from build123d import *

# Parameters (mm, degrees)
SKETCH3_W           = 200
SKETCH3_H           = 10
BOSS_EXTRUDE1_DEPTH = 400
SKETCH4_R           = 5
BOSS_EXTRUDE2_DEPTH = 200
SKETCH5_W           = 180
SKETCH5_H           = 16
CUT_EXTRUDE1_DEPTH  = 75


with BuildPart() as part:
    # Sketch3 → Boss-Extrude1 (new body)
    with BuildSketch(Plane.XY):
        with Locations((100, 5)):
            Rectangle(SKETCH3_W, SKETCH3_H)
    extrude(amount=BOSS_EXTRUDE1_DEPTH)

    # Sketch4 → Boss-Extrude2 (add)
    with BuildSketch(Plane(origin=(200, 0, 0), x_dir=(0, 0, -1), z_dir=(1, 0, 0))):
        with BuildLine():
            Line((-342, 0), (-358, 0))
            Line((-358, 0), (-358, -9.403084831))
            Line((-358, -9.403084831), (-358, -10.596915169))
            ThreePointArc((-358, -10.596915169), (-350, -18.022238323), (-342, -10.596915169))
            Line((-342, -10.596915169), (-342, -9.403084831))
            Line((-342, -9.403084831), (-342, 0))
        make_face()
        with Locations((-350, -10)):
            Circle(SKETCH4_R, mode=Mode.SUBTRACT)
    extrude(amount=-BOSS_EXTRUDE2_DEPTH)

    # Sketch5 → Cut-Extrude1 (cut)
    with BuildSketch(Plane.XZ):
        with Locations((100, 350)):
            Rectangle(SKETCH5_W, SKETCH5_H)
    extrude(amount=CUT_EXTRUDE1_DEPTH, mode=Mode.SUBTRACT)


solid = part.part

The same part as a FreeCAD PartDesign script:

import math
import FreeCAD as App
import Part
import Sketcher

doc = App.newDocument("Part")
body = doc.addObject("PartDesign::Body", "Body")

# Sketch on XY plane
sketch1 = body.newObject("Sketcher::SketchObject", "Sketch")
sketch1.AttachmentSupport = (doc.getObject("XY_Plane"), [""])
sketch1.MapMode = "FlatFace"
sketch1.addGeometry(Part.LineSegment(App.Vector(0, 10, 0), App.Vector(0, 0, 0)), False)
sketch1.addGeometry(Part.LineSegment(App.Vector(0, 0, 0), App.Vector(200, 0, 0)), False)
sketch1.addGeometry(Part.LineSegment(App.Vector(200, 0, 0), App.Vector(200, 10, 0)), False)
sketch1.addGeometry(Part.LineSegment(App.Vector(200, 10, 0), App.Vector(0, 10, 0)), False)
sketch1.addConstraint(Sketcher.Constraint("Coincident", 0, 2, 1, 1))
sketch1.addConstraint(Sketcher.Constraint("Coincident", 1, 2, 2, 1))
sketch1.addConstraint(Sketcher.Constraint("Coincident", 2, 2, 3, 1))
sketch1.addConstraint(Sketcher.Constraint("Coincident", 3, 2, 0, 1))
sketch1.addConstraint(Sketcher.Constraint("Vertical", 0))
sketch1.addConstraint(Sketcher.Constraint("Horizontal", 1))
sketch1.addConstraint(Sketcher.Constraint("Vertical", 2))
sketch1.addConstraint(Sketcher.Constraint("Horizontal", 3))
sketch1.addConstraint(Sketcher.Constraint("Coincident", 0, 2, -1, 1))
sketch1.addConstraint(Sketcher.Constraint("DistanceX", 1, 1, 1, 2, 200.0))
sketch1.addConstraint(Sketcher.Constraint("DistanceY", 0, 2, 0, 1, 10.0))
pad1 = body.newObject("PartDesign::Pad", "Pad")
pad1.Profile = sketch1
pad1.Length = 400

# Sketch on YZ plane
sketch2 = body.newObject("Sketcher::SketchObject", "Sketch001")
sketch2.AttachmentSupport = (doc.getObject("YZ_Plane"), [""])
sketch2.MapMode = "FlatFace"
sketch2.AttachmentOffset = App.Placement(App.Vector(0, 0, 200), App.Rotation())
sketch2.addGeometry(Part.LineSegment(App.Vector(0, 342, 0), App.Vector(0, 358, 0)), False)
sketch2.addGeometry(Part.LineSegment(App.Vector(0, 358, 0), App.Vector(-10.596915, 358, 0)), False)
sketch2.addGeometry(Part.ArcOfCircle(Part.Circle(App.Vector(-10, 350, 0), App.Vector(0, 0, 1), 8.022238), math.radians(94.267183), math.radians(265.732817)), False)
sketch2.addGeometry(Part.LineSegment(App.Vector(-10.596915, 342, 0), App.Vector(0, 342, 0)), False)
sketch2.addGeometry(Part.Circle(App.Vector(-10, 350, 0), App.Vector(0, 0, 1), 5), False)
sketch2.addConstraint(Sketcher.Constraint("Coincident", 0, 2, 1, 1))
sketch2.addConstraint(Sketcher.Constraint("Coincident", 1, 2, 2, 1))
sketch2.addConstraint(Sketcher.Constraint("Coincident", 2, 2, 3, 1))
sketch2.addConstraint(Sketcher.Constraint("Coincident", 3, 2, 0, 1))
sketch2.addConstraint(Sketcher.Constraint("Vertical", 0))
sketch2.addConstraint(Sketcher.Constraint("Horizontal", 1))
sketch2.addConstraint(Sketcher.Constraint("Horizontal", 3))
sketch2.addConstraint(Sketcher.Constraint("Coincident", 4, 3, 2, 3))
sketch2.addConstraint(Sketcher.Constraint("PointOnObject", 0, 2, -2))
sketch2.addConstraint(Sketcher.Constraint("Vertical", 1, 2, 2, 2))
sketch2.addConstraint(Sketcher.Constraint("Diameter", 4, 10.0))
sketch2.addConstraint(Sketcher.Constraint("DistanceY", 0, 1, 0, 2, 16.0))
sketch2.addConstraint(Sketcher.Constraint("DistanceX", 2, 3, -1, 1, 10.0))
sketch2.addConstraint(Sketcher.Constraint("DistanceY", -1, 1, 2, 3, 350.0))
sketch2.addConstraint(Sketcher.Constraint("Radius", 2, 8.022238))
pad2 = body.newObject("PartDesign::Pad", "Pad001")
pad2.Profile = sketch2
pad2.Length = 200
pad2.Reversed = True

# Sketch on XZ plane
sketch3 = body.newObject("Sketcher::SketchObject", "Sketch002")
sketch3.AttachmentSupport = (doc.getObject("XZ_Plane"), [""])
sketch3.MapMode = "FlatFace"
sketch3.addGeometry(Part.LineSegment(App.Vector(10, 358, 0), App.Vector(10, 342, 0)), False)
sketch3.addGeometry(Part.LineSegment(App.Vector(10, 342, 0), App.Vector(190, 342, 0)), False)
sketch3.addGeometry(Part.LineSegment(App.Vector(190, 342, 0), App.Vector(190, 358, 0)), False)
sketch3.addGeometry(Part.LineSegment(App.Vector(190, 358, 0), App.Vector(10, 358, 0)), False)
sketch3.addConstraint(Sketcher.Constraint("Coincident", 0, 2, 1, 1))
sketch3.addConstraint(Sketcher.Constraint("Coincident", 1, 2, 2, 1))
sketch3.addConstraint(Sketcher.Constraint("Coincident", 2, 2, 3, 1))
sketch3.addConstraint(Sketcher.Constraint("Coincident", 3, 2, 0, 1))
sketch3.addConstraint(Sketcher.Constraint("Vertical", 0))
sketch3.addConstraint(Sketcher.Constraint("Horizontal", 1))
sketch3.addConstraint(Sketcher.Constraint("Vertical", 2))
sketch3.addConstraint(Sketcher.Constraint("Horizontal", 3))
sketch3.addConstraint(Sketcher.Constraint("DistanceX", 1, 1, 1, 2, 180.0))
sketch3.addConstraint(Sketcher.Constraint("DistanceY", 0, 2, 0, 1, 16.0))
sketch3.addConstraint(Sketcher.Constraint("DistanceX", -1, 1, 0, 2, 10.0))
sketch3.addConstraint(Sketcher.Constraint("DistanceY", -1, 1, 0, 2, 342.0))
pocket1 = body.newObject("PartDesign::Pocket", "Pocket")
pocket1.Profile = sketch3
pocket1.Length = 75
pocket1.Reversed = True

doc.recompute()
